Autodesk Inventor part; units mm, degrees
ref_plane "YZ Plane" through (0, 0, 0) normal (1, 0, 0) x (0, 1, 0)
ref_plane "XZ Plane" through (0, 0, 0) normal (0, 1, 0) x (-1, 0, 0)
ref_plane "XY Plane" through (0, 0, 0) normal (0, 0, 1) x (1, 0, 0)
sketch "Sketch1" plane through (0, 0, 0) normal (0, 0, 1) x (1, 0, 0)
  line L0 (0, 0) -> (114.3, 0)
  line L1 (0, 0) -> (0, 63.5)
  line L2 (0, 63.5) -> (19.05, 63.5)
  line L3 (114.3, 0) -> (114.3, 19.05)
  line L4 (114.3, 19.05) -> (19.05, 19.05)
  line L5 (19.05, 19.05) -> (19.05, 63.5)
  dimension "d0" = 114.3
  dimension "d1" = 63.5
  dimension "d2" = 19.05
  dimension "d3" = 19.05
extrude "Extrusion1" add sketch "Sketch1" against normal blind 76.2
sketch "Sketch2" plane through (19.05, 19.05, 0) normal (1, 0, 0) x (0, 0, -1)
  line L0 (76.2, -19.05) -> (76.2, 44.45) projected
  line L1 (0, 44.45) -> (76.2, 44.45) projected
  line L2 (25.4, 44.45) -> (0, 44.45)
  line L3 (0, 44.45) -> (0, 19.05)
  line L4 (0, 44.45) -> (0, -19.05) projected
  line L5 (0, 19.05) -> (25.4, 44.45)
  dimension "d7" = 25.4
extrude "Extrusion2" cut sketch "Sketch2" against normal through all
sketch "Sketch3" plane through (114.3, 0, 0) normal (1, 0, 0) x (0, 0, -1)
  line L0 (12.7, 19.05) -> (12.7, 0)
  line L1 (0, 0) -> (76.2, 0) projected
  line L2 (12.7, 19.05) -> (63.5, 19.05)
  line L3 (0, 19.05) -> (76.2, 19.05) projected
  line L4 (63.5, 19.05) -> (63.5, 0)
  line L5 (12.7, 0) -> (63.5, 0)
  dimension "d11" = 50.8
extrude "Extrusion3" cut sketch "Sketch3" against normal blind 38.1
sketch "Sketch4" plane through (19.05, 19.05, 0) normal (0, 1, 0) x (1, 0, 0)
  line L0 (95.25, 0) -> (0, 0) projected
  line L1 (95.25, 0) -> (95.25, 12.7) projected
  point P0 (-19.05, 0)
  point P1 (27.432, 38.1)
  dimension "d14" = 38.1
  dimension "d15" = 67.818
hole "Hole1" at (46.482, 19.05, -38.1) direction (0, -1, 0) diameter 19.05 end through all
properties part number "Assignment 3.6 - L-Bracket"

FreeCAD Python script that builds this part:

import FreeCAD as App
import Part
import Sketcher

V = App.Vector
Q = App.Units.Quantity


def add_polygon(sketch, points):
    """Adds a closed chain of lines whose ends are joined by coincident constraints."""
    first, n = sketch.GeometryCount, len(points)
    for a, b in zip(points, points[1:] + points[:1]):
        sketch.addGeometry(Part.LineSegment(App.Vector(*a, 0), App.Vector(*b, 0)), False)
    for i in range(n):
        sketch.addConstraint(Sketcher.Constraint("Coincident", first + i, 2, first + (i + 1) % n, 1))

doc = App.newDocument("Part")
body = doc.addObject("PartDesign::Body", "Body")

# Sketch on XY plane
sketch1 = body.newObject("Sketcher::SketchObject", "Sketch")
sketch1.AttachmentSupport = (doc.getObject("XY_Plane"), [""])
sketch1.MapMode = "FlatFace"
add_polygon(sketch1, [(0, 63.5), (0, 0), (114.3, 0), (114.3, 19.05), (19.05, 19.05), (19.05, 63.5)])  # lines 0-5
sketch1.addConstraint(Sketcher.Constraint("Vertical", 0))
sketch1.addConstraint(Sketcher.Constraint("Horizontal", 1))
sketch1.addConstraint(Sketcher.Constraint("Vertical", 2))
sketch1.addConstraint(Sketcher.Constraint("Horizontal", 3))
sketch1.addConstraint(Sketcher.Constraint("Vertical", 4))
sketch1.addConstraint(Sketcher.Constraint("Horizontal", 5))
sketch1.addConstraint(Sketcher.Constraint("Coincident", 0, 2, -1, 1))
sketch1.addConstraint(Sketcher.Constraint("Equal", 5, 2))
sketch1.addConstraint(Sketcher.Constraint("DistanceX", 1, 1, 1, 2, Q("4.5 in")))
sketch1.addConstraint(Sketcher.Constraint("DistanceY", 0, 2, 0, 1, Q("2.5 in")))
sketch1.addConstraint(Sketcher.Constraint("DistanceX", 5, 2, 5, 1, Q("0.75 in")))
pad1 = body.newObject("PartDesign::Pad", "Pad")
pad1.Profile = sketch1
pad1.Length = Q("3 in")
pad1.Reversed = True

# Sketch on YZ plane
sketch2 = body.newObject("Sketcher::SketchObject", "Sketch001")
sketch2.AttachmentSupport = (doc.getObject("YZ_Plane"), [""])
sketch2.MapMode = "FlatFace"
sketch2.AttachmentOffset = App.Placement(V(0, 0, 0.75 * 25.4), App.Rotation())
add_polygon(sketch2, [(63.5, -25.4), (63.5, 0), (38.1, 0)])  # lines 0-2
sketch2.addConstraint(Sketcher.Constraint("Vertical", 0))
sketch2.addConstraint(Sketcher.Constraint("Horizontal", 1))
sketch2.addConstraint(Sketcher.Constraint("PointOnObject", 0, 2, -1))
sketch2.addConstraint(Sketcher.Constraint("Equal", 1, 0))
sketch2.addConstraint(Sketcher.Constraint("DistanceX", 1, 2, 1, 1, Q("1 in")))
sketch2.addConstraint(Sketcher.Constraint("DistanceX", -1, 1, 0, 2, Q("2.5 in")))
pocket1 = body.newObject("PartDesign::Pocket", "Pocket")
pocket1.Profile = sketch2
pocket1.Type = "ThroughAll"

# Sketch on YZ plane
sketch3 = body.newObject("Sketcher::SketchObject", "Sketch002")
sketch3.AttachmentSupport = (doc.getObject("YZ_Plane"), [""])
sketch3.MapMode = "FlatFace"
sketch3.AttachmentOffset = App.Placement(V(0, 0, 4.5 * 25.4), App.Rotation())
add_polygon(sketch3, [(19.05, -63.5), (19.05, -12.7), (0, -12.7), (0, -63.5)])  # lines 0-3
sketch3.addConstraint(Sketcher.Constraint("Vertical", 0))
sketch3.addConstraint(Sketcher.Constraint("Horizontal", 1))
sketch3.addConstraint(Sketcher.Constraint("Vertical", 2))
sketch3.addConstraint(Sketcher.Constraint("Horizontal", 3))
sketch3.addConstraint(Sketcher.Constraint("PointOnObject", 1, 2, -2))
sketch3.addConstraint(Sketcher.Constraint("DistanceY", 0, 1, 0, 2, Q("2 in")))
sketch3.addConstraint(Sketcher.Constraint("DistanceX", 1, 2, 1, 1, Q("0.75 in")))
sketch3.addConstraint(Sketcher.Constraint("DistanceY", 0, 2, -1, 1, Q("0.5 in")))
pocket2 = body.newObject("PartDesign::Pocket", "Pocket001")
pocket2.Profile = sketch3
pocket2.Length = Q("1.5 in")

# Sketch on XZ plane
sketch4 = body.newObject("Sketcher::SketchObject", "Sketch003")
sketch4.AttachmentSupport = (doc.getObject("XZ_Plane"), [""])
sketch4.MapMode = "FlatFace"
sketch4.AttachmentOffset = App.Placement(V(0, 0, -0.75 * 25.4), App.Rotation())
sketch4.addGeometry(Part.Circle(V(46.482, -38.1, 0), V(0, 0, 1), 9.525), False)
sketch4.addConstraint(Sketcher.Constraint("Diameter", 0, Q("0.75 in")))
sketch4.addConstraint(Sketcher.Constraint("DistanceY", 0, 3, -1, 1, Q("1.5 in")))
sketch4.addConstraint(Sketcher.Constraint("DistanceX", -1, 1, 0, 3, Q("1.83 in")))
doc.recompute()
hole = body.newObject("PartDesign::Hole", "Hole")
hole.Profile = sketch4
hole.ThreadType = "None"
hole.Diameter = Q("0.75 in")
hole.DepthType = "ThroughAll"
hole.Reversed = True

doc.recompute()
